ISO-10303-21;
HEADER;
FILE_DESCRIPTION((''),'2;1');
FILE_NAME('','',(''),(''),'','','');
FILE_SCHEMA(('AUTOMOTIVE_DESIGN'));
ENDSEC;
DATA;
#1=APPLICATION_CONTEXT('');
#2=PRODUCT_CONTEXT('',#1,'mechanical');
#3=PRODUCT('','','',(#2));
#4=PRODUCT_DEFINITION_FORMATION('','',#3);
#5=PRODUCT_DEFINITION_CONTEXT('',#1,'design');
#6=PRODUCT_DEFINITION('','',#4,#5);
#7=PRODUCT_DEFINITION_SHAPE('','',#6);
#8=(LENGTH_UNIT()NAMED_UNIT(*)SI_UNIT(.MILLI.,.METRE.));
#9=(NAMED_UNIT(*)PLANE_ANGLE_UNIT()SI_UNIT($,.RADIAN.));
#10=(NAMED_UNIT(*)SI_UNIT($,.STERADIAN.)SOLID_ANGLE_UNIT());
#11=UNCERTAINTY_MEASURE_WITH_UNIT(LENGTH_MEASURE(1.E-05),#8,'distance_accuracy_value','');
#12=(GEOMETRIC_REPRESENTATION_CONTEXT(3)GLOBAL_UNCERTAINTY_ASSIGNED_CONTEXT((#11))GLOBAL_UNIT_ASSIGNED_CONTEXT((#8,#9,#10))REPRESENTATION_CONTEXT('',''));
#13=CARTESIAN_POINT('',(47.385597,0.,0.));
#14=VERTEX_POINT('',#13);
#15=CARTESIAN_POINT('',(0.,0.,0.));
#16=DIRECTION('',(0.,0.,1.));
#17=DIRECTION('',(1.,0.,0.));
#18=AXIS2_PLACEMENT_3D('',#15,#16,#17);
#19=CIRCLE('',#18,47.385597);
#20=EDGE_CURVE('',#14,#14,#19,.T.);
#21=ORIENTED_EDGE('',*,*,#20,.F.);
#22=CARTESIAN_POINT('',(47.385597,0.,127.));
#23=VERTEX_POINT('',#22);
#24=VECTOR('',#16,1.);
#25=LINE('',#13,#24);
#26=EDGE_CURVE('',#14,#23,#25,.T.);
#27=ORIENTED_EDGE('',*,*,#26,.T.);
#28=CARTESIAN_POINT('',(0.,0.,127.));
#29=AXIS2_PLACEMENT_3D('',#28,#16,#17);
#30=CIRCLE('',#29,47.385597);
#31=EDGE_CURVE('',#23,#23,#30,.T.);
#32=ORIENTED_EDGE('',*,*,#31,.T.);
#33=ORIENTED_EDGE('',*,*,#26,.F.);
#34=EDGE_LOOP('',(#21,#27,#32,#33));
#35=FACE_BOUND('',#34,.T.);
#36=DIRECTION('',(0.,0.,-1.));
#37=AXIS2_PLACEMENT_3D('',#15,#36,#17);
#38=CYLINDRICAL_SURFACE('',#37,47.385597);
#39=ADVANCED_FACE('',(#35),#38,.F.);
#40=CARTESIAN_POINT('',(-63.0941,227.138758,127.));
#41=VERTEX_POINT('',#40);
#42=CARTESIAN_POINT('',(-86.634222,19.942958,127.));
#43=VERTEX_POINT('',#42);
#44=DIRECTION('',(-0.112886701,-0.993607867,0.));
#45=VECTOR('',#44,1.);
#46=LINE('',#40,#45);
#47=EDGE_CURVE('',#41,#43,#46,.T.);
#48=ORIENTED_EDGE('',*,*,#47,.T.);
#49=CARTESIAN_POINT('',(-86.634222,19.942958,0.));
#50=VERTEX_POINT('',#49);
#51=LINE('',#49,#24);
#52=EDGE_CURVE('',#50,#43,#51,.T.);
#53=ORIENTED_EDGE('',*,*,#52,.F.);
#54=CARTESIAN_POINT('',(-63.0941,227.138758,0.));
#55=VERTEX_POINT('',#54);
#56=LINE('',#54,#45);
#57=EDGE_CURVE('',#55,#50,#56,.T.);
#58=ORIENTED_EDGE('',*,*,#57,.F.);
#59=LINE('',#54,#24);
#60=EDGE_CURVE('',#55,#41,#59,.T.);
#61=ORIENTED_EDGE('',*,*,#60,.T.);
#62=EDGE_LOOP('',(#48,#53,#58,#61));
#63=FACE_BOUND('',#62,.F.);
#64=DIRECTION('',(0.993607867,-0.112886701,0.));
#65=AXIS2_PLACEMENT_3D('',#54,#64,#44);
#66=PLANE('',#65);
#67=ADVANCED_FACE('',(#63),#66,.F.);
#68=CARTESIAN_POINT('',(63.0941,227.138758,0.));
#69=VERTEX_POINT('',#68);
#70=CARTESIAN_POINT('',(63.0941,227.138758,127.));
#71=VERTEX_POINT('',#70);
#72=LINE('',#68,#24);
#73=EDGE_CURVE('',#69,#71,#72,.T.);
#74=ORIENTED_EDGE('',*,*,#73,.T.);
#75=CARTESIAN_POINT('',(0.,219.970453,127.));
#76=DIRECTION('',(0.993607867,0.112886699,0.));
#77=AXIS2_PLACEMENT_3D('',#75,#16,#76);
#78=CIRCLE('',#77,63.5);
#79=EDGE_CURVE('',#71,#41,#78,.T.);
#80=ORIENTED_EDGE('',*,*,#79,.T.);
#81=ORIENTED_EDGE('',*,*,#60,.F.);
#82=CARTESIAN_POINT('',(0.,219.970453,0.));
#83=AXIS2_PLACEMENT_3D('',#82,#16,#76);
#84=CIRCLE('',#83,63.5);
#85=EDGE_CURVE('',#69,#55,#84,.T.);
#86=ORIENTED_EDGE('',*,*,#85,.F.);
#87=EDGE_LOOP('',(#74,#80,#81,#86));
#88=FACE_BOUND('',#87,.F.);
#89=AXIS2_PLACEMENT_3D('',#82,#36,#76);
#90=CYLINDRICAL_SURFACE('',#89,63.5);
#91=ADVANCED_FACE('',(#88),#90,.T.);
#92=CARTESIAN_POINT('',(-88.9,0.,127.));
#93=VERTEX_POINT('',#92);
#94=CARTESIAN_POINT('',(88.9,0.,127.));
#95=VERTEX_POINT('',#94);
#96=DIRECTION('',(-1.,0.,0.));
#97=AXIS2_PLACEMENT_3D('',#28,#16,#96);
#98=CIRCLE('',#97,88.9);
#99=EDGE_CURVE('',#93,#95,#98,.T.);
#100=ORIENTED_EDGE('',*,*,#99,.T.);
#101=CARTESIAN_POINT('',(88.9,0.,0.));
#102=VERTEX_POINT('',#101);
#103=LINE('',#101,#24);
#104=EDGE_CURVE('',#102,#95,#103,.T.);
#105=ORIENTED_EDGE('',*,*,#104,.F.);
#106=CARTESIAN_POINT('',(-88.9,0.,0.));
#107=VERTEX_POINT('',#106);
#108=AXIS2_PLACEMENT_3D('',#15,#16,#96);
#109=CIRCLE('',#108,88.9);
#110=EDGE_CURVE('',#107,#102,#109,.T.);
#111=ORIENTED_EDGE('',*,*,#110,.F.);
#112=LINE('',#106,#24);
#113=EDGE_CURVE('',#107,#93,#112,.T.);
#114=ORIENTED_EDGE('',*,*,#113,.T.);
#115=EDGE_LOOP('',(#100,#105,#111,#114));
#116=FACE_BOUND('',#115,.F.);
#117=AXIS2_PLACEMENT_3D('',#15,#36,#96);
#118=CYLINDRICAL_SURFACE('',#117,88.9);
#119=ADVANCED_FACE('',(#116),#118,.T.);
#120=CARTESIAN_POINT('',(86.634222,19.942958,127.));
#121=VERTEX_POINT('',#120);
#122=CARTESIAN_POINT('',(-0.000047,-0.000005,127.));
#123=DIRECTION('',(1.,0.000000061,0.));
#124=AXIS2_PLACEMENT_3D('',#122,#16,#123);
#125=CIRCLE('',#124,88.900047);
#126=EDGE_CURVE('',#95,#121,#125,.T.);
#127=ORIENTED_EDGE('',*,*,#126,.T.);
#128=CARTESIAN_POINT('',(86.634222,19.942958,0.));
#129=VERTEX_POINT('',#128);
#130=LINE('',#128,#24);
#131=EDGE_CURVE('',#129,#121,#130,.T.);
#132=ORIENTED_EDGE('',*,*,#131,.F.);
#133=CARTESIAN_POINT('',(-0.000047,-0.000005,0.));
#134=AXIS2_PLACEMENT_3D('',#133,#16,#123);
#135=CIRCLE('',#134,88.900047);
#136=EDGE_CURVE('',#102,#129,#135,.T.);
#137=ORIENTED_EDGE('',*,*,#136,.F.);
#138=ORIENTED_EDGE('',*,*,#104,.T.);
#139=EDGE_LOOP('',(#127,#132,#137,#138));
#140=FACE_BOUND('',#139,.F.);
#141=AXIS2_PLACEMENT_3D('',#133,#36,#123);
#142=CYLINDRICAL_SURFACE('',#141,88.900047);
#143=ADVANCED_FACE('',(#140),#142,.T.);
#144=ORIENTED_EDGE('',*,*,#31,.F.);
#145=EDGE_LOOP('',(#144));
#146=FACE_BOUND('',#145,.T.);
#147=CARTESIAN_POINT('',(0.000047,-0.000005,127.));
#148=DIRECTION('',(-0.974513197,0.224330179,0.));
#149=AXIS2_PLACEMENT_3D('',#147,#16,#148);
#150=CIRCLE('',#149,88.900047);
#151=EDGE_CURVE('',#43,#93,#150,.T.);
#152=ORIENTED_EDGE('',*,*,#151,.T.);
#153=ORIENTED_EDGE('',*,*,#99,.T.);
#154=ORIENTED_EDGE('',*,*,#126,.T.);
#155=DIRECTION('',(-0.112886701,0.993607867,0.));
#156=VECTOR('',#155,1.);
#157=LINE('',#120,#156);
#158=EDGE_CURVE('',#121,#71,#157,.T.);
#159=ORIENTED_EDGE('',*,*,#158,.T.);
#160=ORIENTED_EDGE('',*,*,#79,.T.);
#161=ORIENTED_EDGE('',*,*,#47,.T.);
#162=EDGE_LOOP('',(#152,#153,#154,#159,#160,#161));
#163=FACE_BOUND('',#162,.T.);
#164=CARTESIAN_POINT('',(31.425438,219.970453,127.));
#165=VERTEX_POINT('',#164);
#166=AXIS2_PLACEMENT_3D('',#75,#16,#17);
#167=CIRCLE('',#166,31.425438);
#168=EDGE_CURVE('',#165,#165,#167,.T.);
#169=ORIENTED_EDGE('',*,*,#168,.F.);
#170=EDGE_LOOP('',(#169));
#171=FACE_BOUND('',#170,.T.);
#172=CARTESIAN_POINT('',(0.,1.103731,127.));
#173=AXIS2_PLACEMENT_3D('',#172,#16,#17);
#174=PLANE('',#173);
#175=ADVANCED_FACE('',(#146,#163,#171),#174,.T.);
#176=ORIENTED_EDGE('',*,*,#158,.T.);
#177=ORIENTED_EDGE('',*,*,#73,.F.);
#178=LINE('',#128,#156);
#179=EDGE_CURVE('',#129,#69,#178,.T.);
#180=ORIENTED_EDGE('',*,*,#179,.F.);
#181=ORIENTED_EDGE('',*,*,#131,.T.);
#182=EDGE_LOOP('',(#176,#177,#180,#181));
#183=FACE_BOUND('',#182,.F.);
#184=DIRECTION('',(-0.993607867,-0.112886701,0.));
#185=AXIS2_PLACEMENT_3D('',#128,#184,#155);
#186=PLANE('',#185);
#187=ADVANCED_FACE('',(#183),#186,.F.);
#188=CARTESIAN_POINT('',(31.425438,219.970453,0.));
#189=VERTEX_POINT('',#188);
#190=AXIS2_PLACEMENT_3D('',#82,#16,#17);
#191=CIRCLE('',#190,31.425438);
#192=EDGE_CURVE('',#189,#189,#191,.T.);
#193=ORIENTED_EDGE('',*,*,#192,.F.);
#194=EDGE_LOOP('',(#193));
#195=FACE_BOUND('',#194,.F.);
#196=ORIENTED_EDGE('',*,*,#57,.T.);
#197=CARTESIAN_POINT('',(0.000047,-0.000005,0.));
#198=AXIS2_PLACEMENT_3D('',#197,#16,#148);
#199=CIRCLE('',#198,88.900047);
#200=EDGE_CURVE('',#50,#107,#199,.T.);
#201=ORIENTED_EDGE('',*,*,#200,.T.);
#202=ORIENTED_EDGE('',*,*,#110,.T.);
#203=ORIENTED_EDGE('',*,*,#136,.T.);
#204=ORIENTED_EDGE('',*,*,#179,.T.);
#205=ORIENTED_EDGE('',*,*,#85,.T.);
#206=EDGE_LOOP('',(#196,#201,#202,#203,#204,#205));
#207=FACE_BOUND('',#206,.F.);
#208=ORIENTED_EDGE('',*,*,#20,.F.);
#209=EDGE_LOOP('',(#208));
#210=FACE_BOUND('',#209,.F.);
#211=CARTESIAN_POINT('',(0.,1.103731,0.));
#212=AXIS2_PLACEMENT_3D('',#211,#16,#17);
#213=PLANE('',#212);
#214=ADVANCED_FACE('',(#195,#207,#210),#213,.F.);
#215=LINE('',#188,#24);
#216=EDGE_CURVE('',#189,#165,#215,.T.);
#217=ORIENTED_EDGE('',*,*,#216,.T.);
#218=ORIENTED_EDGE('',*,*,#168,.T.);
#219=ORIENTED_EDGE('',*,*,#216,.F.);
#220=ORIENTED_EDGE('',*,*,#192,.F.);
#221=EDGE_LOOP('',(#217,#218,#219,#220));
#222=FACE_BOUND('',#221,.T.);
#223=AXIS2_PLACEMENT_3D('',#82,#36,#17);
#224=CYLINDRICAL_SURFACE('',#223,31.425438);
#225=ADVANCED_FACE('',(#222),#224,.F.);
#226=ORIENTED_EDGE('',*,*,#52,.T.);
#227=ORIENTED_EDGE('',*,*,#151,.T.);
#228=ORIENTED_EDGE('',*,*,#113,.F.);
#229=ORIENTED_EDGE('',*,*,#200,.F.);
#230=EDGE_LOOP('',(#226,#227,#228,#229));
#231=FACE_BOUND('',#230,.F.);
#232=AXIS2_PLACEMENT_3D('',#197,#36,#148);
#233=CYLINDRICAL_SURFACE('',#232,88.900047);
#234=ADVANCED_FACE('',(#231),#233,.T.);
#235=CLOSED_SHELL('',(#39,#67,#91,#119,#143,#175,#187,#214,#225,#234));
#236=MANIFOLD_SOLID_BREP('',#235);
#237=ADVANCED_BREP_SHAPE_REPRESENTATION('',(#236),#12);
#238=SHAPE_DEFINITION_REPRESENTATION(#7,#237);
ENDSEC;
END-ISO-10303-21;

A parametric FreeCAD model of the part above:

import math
import FreeCAD as App
import Part
import Sketcher

V = App.Vector
Q = App.Units.Quantity

doc = App.newDocument("Part")
params = doc.addObject("Spreadsheet::Sheet", "Params")
for row, (alias, value) in enumerate([
    ("sketch1_radius", "3.5 in"),
    ("sketch1_radius2", "2.5 in"),
    ("pad1_length", "5 in"),
], start=1):
    params.set(f"A{row}", alias)
    params.set(f"B{row}", "=" + value)
    params.setAlias(f"B{row}", alias)

body = doc.addObject("PartDesign::Body", "Body")

# Sketch on XY plane
sketch1 = body.newObject("Sketcher::SketchObject", "Sketch")
sketch1.AttachmentSupport = (doc.getObject("XY_Plane"), [""])
sketch1.MapMode = "FlatFace"
sketch1.addGeometry(Part.ArcOfCircle(Part.Circle(V(0.000047, -0.000005, 0), V(0, 0, 1), 88.900047), math.radians(167.036507), math.radians(179.999996)), False)
sketch1.addGeometry(Part.ArcOfCircle(Part.Circle(V(0, 0, 0), V(0, 0, 1), 88.9), math.radians(180), math.radians(360)), False)
sketch1.addGeometry(Part.ArcOfCircle(Part.Circle(V(-0.000047, -0.000005, 0), V(0, 0, 1), 88.900047), math.radians(0.000004), math.radians(12.963493)), False)
sketch1.addGeometry(Part.LineSegment(V(86.634222, 19.942958, 0), V(63.0941, 227.138758, 0)), False)
sketch1.addGeometry(Part.ArcOfCircle(Part.Circle(V(0, 219.970453, 0), V(0, 0, 1), 63.5), math.radians(6.481748), math.radians(173.518252)), False)
sketch1.addGeometry(Part.LineSegment(V(-63.0941, 227.138758, 0), V(-86.634222, 19.942958, 0)), False)
sketch1.addGeometry(Part.Circle(V(0, 0, 0), V(0, 0, 1), 47.385597), False)
sketch1.addGeometry(Part.Circle(V(0, 219.970453, 0), V(0, 0, 1), 31.425438), False)
sketch1.addConstraint(Sketcher.Constraint("Coincident", 0, 2, 1, 1))
sketch1.addConstraint(Sketcher.Constraint("Coincident", 1, 2, 2, 1))
sketch1.addConstraint(Sketcher.Constraint("Coincident", 2, 2, 3, 1))
sketch1.addConstraint(Sketcher.Constraint("Coincident", 3, 2, 4, 1))
sketch1.addConstraint(Sketcher.Constraint("Coincident", 4, 2, 5, 1))
sketch1.addConstraint(Sketcher.Constraint("Coincident", 5, 2, 0, 1))
sketch1.addConstraint(Sketcher.Constraint("Coincident", 1, 3, -1, 1))
sketch1.addConstraint(Sketcher.Constraint("Coincident", 6, 3, -1, 1))
sketch1.addConstraint(Sketcher.Constraint("Coincident", 7, 3, 4, 3))
sketch1.addConstraint(Sketcher.Constraint("PointOnObject", 4, 3, -2))
sketch1.addConstraint(Sketcher.Constraint("PointOnObject", 0, 2, -1))
sketch1.addConstraint(Sketcher.Constraint("PointOnObject", 1, 2, -1))
sketch1.addConstraint(Sketcher.Constraint("Radius", 1, Q("3.5 in")))
sketch1.addConstraint(Sketcher.Constraint("Radius", 4, Q("2.5 in")))
sketch1.addConstraint(Sketcher.Constraint("Diameter", 6, 94.771194))
sketch1.addConstraint(Sketcher.Constraint("Diameter", 7, 62.850876))
sketch1.addConstraint(Sketcher.Constraint("Radius", 0, 88.900047))
sketch1.addConstraint(Sketcher.Constraint("Radius", 2, 88.900047))
sketch1.addConstraint(Sketcher.Constraint("DistanceX", -1, 1, 3, 2, 63.0941))
sketch1.addConstraint(Sketcher.Constraint("DistanceX", 4, 2, -1, 1, 63.0941))
sketch1.addConstraint(Sketcher.Constraint("DistanceY", 2, 2, 3, 2, 207.1958))
sketch1.addConstraint(Sketcher.Constraint("DistanceY", -1, 1, 2, 2, 19.942958))
sketch1.addConstraint(Sketcher.Constraint("DistanceX", 5, 2, -1, 1, 86.634222))
sketch1.addConstraint(Sketcher.Constraint("DistanceY", -1, 1, 5, 2, 19.942958))
sketch1.addConstraint(Sketcher.Constraint("DistanceY", 2, 3, 7, 3, 219.970458))
sketch1.setExpression("Constraints[12]", "Params.sketch1_radius")
sketch1.setExpression("Constraints[13]", "Params.sketch1_radius2")
pad1 = body.newObject("PartDesign::Pad", "Pad")
pad1.Profile = sketch1
pad1.setExpression("Length", "Params.pad1_length")

doc.recompute()
